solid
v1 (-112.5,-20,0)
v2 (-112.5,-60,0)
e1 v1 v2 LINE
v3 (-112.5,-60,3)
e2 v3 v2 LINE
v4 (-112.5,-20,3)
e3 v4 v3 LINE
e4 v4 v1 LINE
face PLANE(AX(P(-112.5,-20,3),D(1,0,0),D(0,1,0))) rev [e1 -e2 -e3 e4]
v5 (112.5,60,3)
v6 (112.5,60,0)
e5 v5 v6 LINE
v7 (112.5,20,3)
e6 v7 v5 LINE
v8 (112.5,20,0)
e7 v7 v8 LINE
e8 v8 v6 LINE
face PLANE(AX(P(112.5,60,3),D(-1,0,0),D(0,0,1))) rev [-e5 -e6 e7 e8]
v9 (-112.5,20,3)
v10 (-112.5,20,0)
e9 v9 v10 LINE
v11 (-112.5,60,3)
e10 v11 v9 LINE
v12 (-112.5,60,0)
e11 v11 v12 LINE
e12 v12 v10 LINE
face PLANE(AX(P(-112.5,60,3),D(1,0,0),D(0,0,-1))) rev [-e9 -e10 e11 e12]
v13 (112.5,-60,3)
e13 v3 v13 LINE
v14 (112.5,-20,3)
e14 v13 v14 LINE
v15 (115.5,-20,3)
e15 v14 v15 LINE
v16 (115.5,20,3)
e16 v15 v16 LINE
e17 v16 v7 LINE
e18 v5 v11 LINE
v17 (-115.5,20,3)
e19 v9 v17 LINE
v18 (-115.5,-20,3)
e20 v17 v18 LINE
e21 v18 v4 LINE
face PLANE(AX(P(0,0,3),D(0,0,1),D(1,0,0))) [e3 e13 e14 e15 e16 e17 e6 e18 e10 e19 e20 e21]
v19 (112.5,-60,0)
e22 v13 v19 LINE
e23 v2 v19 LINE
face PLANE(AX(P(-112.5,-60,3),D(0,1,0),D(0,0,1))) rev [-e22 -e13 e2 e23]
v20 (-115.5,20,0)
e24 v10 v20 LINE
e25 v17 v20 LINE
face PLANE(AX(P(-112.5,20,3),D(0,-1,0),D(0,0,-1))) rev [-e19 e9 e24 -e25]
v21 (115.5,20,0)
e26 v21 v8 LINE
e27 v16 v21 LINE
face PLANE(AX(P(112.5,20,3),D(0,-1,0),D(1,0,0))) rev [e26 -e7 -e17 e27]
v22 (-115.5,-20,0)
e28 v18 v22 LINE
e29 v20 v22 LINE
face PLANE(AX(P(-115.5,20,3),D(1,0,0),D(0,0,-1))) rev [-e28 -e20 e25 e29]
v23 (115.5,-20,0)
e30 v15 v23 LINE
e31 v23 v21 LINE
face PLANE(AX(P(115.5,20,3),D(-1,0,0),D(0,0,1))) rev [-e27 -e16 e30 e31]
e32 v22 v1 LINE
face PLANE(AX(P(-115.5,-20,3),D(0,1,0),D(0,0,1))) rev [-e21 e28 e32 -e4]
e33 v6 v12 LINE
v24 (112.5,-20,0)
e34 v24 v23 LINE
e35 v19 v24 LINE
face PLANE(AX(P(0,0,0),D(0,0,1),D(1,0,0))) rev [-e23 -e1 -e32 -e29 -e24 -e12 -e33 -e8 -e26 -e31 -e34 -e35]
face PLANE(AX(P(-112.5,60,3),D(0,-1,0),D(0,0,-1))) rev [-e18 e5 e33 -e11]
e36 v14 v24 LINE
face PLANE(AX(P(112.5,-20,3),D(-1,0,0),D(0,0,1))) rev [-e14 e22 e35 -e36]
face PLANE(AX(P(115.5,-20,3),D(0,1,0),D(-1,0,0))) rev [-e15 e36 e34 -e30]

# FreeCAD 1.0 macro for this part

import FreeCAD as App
import Part
import Sketcher

V = App.Vector
Q = App.Units.Quantity


def add_polygon(sketch, points):
    """Adds a closed chain of lines whose ends are joined by coincident constraints."""
    first, n = sketch.GeometryCount, len(points)
    for a, b in zip(points, points[1:] + points[:1]):
        sketch.addGeometry(Part.LineSegment(App.Vector(*a, 0), App.Vector(*b, 0)), False)
    for i in range(n):
        sketch.addConstraint(Sketcher.Constraint("Coincident", first + i, 2, first + (i + 1) % n, 1))

doc = App.newDocument("Part")
params = doc.addObject("Spreadsheet::Sheet", "Params")
for row, (alias, value) in enumerate([
    ("sketch1_width", "3 mm"),
    ("sketch1_width2", "225 mm"),
    ("sketch1_height", "40 mm"),
    ("pad1_length", "3 mm"),
], start=1):
    params.set(f"A{row}", alias)
    params.set(f"B{row}", "=" + value)
    params.setAlias(f"B{row}", alias)

body = doc.addObject("PartDesign::Body", "Body")

sketch1 = body.newObject("Sketcher::SketchObject", "Sketch")
sketch1.AttachmentSupport = (doc.getObject("XY_Plane"), [""])
sketch1.MapMode = "FlatFace"
add_polygon(sketch1, [(-112.5, 20), (-115.5, 20), (-115.5, -20), (-112.5, -20), (-112.5, -60), (112.5, -60), (112.5, -20), (115.5, -20), (115.5, 20), (112.5, 20), (112.5, 60), (-112.5, 60)])
sketch1.addConstraint([
    Sketcher.Constraint("Horizontal", 0),
    Sketcher.Constraint("Vertical", 1),
    Sketcher.Constraint("Horizontal", 2),
    Sketcher.Constraint("Vertical", 3),
    Sketcher.Constraint("Horizontal", 4),
    Sketcher.Constraint("Vertical", 5),
    Sketcher.Constraint("Horizontal", 6),
    Sketcher.Constraint("Vertical", 7),
    Sketcher.Constraint("Horizontal", 8),
    Sketcher.Constraint("Vertical", 9),
    Sketcher.Constraint("Horizontal", 10),
    Sketcher.Constraint("Vertical", 11),
    Sketcher.Constraint("Symmetric", 0, 2, 6, 2, -1, 1),
    Sketcher.Constraint("Symmetric", 2, 2, 8, 2, -1, 1),
    Sketcher.Constraint("Symmetric", 4, 2, 10, 2, -1, 1),
    Sketcher.Constraint("Symmetric", 2, 2, 5, 2, -2),
    Sketcher.Constraint("Equal", 1, 3),
    Sketcher.Constraint("DistanceX", 0, 2, 0, 1, Q("3 mm")),
    Sketcher.Constraint("DistanceX", 4, 1, 4, 2, Q("225 mm")),
    Sketcher.Constraint("DistanceY", 1, 2, 1, 1, Q("40 mm")),
])
sketch1.setExpression("Constraints[29]", "Params.sketch1_width")
sketch1.setExpression("Constraints[30]", "Params.sketch1_width2")
sketch1.setExpression("Constraints[31]", "Params.sketch1_height")
pad1 = body.newObject("PartDesign::Pad", "Pad")
pad1.Profile = sketch1
pad1.setExpression("Length", "Params.pad1_length")

doc.recompute()
